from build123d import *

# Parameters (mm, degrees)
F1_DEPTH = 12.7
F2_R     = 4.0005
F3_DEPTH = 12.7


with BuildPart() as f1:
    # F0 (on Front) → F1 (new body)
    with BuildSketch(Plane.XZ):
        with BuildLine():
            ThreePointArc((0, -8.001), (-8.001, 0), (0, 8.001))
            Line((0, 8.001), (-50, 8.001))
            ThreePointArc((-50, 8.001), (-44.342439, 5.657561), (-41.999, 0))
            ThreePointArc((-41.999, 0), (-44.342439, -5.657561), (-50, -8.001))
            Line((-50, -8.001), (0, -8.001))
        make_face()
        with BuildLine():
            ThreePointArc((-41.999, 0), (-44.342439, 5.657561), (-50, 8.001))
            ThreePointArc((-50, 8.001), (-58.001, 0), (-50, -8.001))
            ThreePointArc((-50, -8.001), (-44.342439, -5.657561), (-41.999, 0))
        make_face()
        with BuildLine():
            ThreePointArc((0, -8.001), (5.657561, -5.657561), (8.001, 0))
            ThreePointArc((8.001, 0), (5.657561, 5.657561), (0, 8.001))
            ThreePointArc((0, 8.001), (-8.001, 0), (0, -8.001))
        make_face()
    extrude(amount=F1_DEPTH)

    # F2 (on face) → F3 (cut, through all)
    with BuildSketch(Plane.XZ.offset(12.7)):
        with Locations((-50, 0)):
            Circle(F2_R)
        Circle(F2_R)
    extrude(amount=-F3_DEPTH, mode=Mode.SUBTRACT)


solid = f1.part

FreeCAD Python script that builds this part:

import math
import FreeCAD as App
import Part
import Sketcher

V = App.Vector
Q = App.Units.Quantity

doc = App.newDocument("Part")
body = doc.addObject("PartDesign::Body", "Body")

# Sketch on XZ plane
sketch1 = body.newObject("Sketcher::SketchObject", "Sketch")
sketch1.AttachmentSupport = (doc.getObject("XZ_Plane"), [""])
sketch1.MapMode = "FlatFace"
sketch1.addGeometry([
    Part.LineSegment(V(0, 8, 0), V(-50, 8, 0)),  # 0
    Part.ArcOfCircle(Part.Circle(V(-50, 0, 0), V(0, 0, 1), 8), math.radians(90), math.radians(270)),  # 1
    Part.LineSegment(V(-50, -8, 0), V(0, -8, 0)),  # 2
    Part.ArcOfCircle(Part.Circle(V(0, 0, 0), V(0, 0, 1), 8), math.radians(-90), math.radians(0)),  # 3
    Part.ArcOfCircle(Part.Circle(V(0, 0, 0), V(0, 0, 1), 8), math.radians(0), math.radians(90)),  # 4
], False)
sketch1.addConstraint([
    Sketcher.Constraint("Tangent", 0, 2, 1, 1),
    Sketcher.Constraint("Tangent", 1, 2, 2, 1),
    Sketcher.Constraint("Tangent", 2, 2, 3, 1),
    Sketcher.Constraint("Tangent", 3, 2, 4, 1),
    Sketcher.Constraint("Tangent", 4, 2, 0, 1),
    Sketcher.Constraint("Horizontal", 0),
    Sketcher.Constraint("Horizontal", 2),
    Sketcher.Constraint("Coincident", 3, 3, -1, 1),
    Sketcher.Constraint("Equal", 1, 3),
    Sketcher.Constraint("PointOnObject", 3, 2, -1),
    Sketcher.Constraint("Radius", 1, Q("0.315 in")),
    Sketcher.Constraint("DistanceX", 0, 2, 0, 1, Q("50 mm")),
])
pad1 = body.newObject("PartDesign::Pad", "Pad")
pad1.Profile = sketch1
pad1.Length = Q("0.5 in")

# Sketch on XZ plane
sketch2 = body.newObject("Sketcher::SketchObject", "Sketch001")
sketch2.AttachmentSupport = (doc.getObject("XZ_Plane"), [""])
sketch2.MapMode = "FlatFace"
sketch2.AttachmentOffset = App.Placement(V(0, 0, 0.5 * 25.4), App.Rotation())
sketch2.addGeometry([
    Part.Circle(V(-50, 0, 0), V(0, 0, 1), 4),
    Part.Circle(V(0, 0, 0), V(0, 0, 1), 4),
], False)
sketch2.addConstraint([
    Sketcher.Constraint("Coincident", 1, 3, -1, 1),
    Sketcher.Constraint("Equal", 0, 1),
    Sketcher.Constraint("PointOnObject", 0, 3, -1),
    Sketcher.Constraint("Diameter", 0, Q("0.315 in")),
    Sketcher.Constraint("DistanceX", 0, 3, -1, 1, Q("50 mm")),
])
pocket1 = body.newObject("PartDesign::Pocket", "Pocket")
pocket1.Profile = sketch2
pocket1.Type = "ThroughAll"

doc.recompute()
